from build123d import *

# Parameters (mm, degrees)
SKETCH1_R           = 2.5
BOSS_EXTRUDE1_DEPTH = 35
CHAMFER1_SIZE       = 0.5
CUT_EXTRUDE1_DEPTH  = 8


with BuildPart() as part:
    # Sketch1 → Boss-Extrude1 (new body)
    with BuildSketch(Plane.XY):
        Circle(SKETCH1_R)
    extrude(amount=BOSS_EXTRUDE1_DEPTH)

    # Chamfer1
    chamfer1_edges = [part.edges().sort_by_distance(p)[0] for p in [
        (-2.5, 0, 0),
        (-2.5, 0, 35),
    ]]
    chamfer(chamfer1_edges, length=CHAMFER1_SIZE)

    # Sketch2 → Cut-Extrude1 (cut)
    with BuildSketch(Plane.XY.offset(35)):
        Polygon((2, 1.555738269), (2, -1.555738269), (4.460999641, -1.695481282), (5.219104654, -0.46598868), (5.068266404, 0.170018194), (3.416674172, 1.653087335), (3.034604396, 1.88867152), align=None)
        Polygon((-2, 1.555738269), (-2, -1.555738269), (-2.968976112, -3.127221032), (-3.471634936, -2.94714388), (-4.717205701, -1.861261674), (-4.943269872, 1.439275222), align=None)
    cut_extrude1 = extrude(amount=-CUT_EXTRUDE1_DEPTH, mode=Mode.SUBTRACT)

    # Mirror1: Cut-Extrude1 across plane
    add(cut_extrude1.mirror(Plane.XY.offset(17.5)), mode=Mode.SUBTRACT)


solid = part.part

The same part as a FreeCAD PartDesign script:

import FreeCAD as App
import Part
import Sketcher

V = App.Vector
Q = App.Units.Quantity


def edges_at(feature, points):
    """Names of the edges that pass closest to the given points."""
    edges = feature.Shape.Edges
    near = lambda p: min(range(len(edges)), key=lambda i: edges[i].distToShape(Part.Vertex(*p))[0])
    return sorted({f"Edge{near(p) + 1}" for p in points})

doc = App.newDocument("Part")
body = doc.addObject("PartDesign::Body", "Body")

sketch1 = doc.addObject("Sketcher::SketchObject", "Sketch")
body.addObject(sketch1)
sketch1.AttachmentSupport = (doc.XY_Plane, [""])
sketch1.MapMode = "FlatFace"
sketch1.addGeometry(Part.Circle(V(0, 0, 0), V(0, 0, 1), 2.5), False)
sketch1.addConstraint([
    Sketcher.Constraint("Coincident", 0, 3, -1, 1),
    Sketcher.Constraint("Diameter", 0, Q("5 mm")),
])
pad1 = doc.addObject("PartDesign::Pad", "Pad")
body.addObject(pad1)
pad1.Profile = sketch1
pad1.Length = 35
doc.recompute()

chamfer = doc.addObject("PartDesign::Chamfer", "Chamfer")
body.addObject(chamfer)
chamfer.Base = (pad1, edges_at(pad1, [(-2.5, 0, 0), (-2.5, 0, 35)]))
chamfer.Size = 0.5

sketch2 = doc.addObject("Sketcher::SketchObject", "Sketch001")
body.addObject(sketch2)
sketch2.AttachmentSupport = (doc.XY_Plane, [""])
sketch2.MapMode = "FlatFace"
sketch2.AttachmentOffset = App.Placement(V(0, 0, 35), App.Rotation())
sketch2.addGeometry([
    Part.LineSegment(V(2, 1.56, 0), V(2, -1.56, 0)),
    Part.LineSegment(V(2, -1.56, 0), V(4.46, -1.7, 0)),
    Part.LineSegment(V(4.46, -1.7, 0), V(5.22, -0.47, 0)),
    Part.LineSegment(V(5.22, -0.47, 0), V(5.07, 0.17, 0)),
    Part.LineSegment(V(5.07, 0.17, 0), V(3.42, 1.65, 0)),
    Part.LineSegment(V(3.42, 1.65, 0), V(3.03, 1.89, 0)),
    Part.LineSegment(V(3.03, 1.89, 0), V(2, 1.56, 0)),
    Part.LineSegment(V(-2, -1.56, 0), V(-2, 1.56, 0)),
    Part.LineSegment(V(-2, 1.56, 0), V(-4.94, 1.44, 0)),
    Part.LineSegment(V(-4.94, 1.44, 0), V(-4.72, -1.86, 0)),
    Part.LineSegment(V(-4.72, -1.86, 0), V(-3.47, -2.95, 0)),
    Part.LineSegment(V(-3.47, -2.95, 0), V(-2.97, -3.13, 0)),
    Part.LineSegment(V(-2.97, -3.13, 0), V(-2, -1.56, 0)),
], False)
sketch2.addConstraint([
    Sketcher.Constraint("Coincident", 0, 2, 1, 1),
    Sketcher.Constraint("Coincident", 1, 2, 2, 1),
    Sketcher.Constraint("Coincident", 2, 2, 3, 1),
    Sketcher.Constraint("Coincident", 3, 2, 4, 1),
    Sketcher.Constraint("Coincident", 4, 2, 5, 1),
    Sketcher.Constraint("Coincident", 5, 2, 6, 1),
    Sketcher.Constraint("Coincident", 6, 2, 0, 1),
    Sketcher.Constraint("Coincident", 7, 2, 8, 1),
    Sketcher.Constraint("Coincident", 8, 2, 9, 1),
    Sketcher.Constraint("Coincident", 9, 2, 10, 1),
    Sketcher.Constraint("Coincident", 10, 2, 11, 1),
    Sketcher.Constraint("Coincident", 11, 2, 12, 1),
    Sketcher.Constraint("Coincident", 12, 2, 7, 1),
    Sketcher.Constraint("Vertical", 0),
    Sketcher.Constraint("Vertical", 7),
    Sketcher.Constraint("Symmetric", 0, 2, 7, 2, -1, 1),
    Sketcher.Constraint("Perpendicular", 2, 5),
    Sketcher.Constraint("Perpendicular", 5, 12),
    Sketcher.Constraint("Horizontal", 6, 2, 7, 2),
    Sketcher.Constraint("Horizontal", 0, 2, 12, 2),
    Sketcher.Constraint("DistanceX", -1, 1, 0, 2, Q("2 mm")),
    Sketcher.Constraint("DistanceX", -1, 1, 1, 2, Q("4.461 mm")),
    Sketcher.Constraint("DistanceY", 9, 2, 7, 2, Q("3.417 mm")),
    Sketcher.Constraint("DistanceY", 1, 2, 3, 2, Q("1.865499 mm")),
    Sketcher.Constraint("DistanceX", 5, 2, 2, 2, Q("2.1845 mm")),
    Sketcher.Constraint("Distance", 2, Q("1.444429 mm")),
    Sketcher.Constraint("Distance", 3, Q("0.653649 mm")),
    Sketcher.Constraint("Distance", 4, Q("2.219741 mm")),
    Sketcher.Constraint("Distance", 9, Q("3.30827 mm")),
    Sketcher.Constraint("Distance", 10, Q("1.652449 mm")),
    Sketcher.Constraint("Distance", 11, Q("0.533942 mm")),
    Sketcher.Constraint("DistanceY", 0, 2, 0, 1, Q("3.111477 mm")),
    Sketcher.Constraint("DistanceY", 1, 2, -1, 1, Q("1.695481 mm")),
    Sketcher.Constraint("DistanceY", 2, 2, -1, 1, Q("0.465989 mm")),
    Sketcher.Constraint("DistanceY", -1, 1, 5, 2, Q("1.888672 mm")),
    Sketcher.Constraint("DistanceX", 8, 2, -1, 1, Q("4.94327 mm")),
    Sketcher.Constraint("DistanceY", 11, 2, -1, 1, Q("3.127221 mm")),
    Sketcher.Constraint("DistanceX", 9, 2, 5, 2, Q("7.75181 mm")),
])
pocket1 = doc.addObject("PartDesign::Pocket", "Pocket")
body.addObject(pocket1)
pocket1.Profile = sketch2
pocket1.Length = 8
doc.recompute()

datumplane = doc.addObject("PartDesign::Plane", "DatumPlane")
body.addObject(datumplane)
datumplane.AttachmentSupport = (doc.XY_Plane, [""])
datumplane.MapMode = "FlatFace"
datumplane.AttachmentOffset = App.Placement(V(0, 0, 17.5), App.Rotation())
mirrored = doc.addObject("PartDesign::Mirrored", "Mirrored")
body.addObject(mirrored)
mirrored.Originals = [pocket1]
mirrored.MirrorPlane = (datumplane, [""])
body.Tip = mirrored

doc.recompute()
